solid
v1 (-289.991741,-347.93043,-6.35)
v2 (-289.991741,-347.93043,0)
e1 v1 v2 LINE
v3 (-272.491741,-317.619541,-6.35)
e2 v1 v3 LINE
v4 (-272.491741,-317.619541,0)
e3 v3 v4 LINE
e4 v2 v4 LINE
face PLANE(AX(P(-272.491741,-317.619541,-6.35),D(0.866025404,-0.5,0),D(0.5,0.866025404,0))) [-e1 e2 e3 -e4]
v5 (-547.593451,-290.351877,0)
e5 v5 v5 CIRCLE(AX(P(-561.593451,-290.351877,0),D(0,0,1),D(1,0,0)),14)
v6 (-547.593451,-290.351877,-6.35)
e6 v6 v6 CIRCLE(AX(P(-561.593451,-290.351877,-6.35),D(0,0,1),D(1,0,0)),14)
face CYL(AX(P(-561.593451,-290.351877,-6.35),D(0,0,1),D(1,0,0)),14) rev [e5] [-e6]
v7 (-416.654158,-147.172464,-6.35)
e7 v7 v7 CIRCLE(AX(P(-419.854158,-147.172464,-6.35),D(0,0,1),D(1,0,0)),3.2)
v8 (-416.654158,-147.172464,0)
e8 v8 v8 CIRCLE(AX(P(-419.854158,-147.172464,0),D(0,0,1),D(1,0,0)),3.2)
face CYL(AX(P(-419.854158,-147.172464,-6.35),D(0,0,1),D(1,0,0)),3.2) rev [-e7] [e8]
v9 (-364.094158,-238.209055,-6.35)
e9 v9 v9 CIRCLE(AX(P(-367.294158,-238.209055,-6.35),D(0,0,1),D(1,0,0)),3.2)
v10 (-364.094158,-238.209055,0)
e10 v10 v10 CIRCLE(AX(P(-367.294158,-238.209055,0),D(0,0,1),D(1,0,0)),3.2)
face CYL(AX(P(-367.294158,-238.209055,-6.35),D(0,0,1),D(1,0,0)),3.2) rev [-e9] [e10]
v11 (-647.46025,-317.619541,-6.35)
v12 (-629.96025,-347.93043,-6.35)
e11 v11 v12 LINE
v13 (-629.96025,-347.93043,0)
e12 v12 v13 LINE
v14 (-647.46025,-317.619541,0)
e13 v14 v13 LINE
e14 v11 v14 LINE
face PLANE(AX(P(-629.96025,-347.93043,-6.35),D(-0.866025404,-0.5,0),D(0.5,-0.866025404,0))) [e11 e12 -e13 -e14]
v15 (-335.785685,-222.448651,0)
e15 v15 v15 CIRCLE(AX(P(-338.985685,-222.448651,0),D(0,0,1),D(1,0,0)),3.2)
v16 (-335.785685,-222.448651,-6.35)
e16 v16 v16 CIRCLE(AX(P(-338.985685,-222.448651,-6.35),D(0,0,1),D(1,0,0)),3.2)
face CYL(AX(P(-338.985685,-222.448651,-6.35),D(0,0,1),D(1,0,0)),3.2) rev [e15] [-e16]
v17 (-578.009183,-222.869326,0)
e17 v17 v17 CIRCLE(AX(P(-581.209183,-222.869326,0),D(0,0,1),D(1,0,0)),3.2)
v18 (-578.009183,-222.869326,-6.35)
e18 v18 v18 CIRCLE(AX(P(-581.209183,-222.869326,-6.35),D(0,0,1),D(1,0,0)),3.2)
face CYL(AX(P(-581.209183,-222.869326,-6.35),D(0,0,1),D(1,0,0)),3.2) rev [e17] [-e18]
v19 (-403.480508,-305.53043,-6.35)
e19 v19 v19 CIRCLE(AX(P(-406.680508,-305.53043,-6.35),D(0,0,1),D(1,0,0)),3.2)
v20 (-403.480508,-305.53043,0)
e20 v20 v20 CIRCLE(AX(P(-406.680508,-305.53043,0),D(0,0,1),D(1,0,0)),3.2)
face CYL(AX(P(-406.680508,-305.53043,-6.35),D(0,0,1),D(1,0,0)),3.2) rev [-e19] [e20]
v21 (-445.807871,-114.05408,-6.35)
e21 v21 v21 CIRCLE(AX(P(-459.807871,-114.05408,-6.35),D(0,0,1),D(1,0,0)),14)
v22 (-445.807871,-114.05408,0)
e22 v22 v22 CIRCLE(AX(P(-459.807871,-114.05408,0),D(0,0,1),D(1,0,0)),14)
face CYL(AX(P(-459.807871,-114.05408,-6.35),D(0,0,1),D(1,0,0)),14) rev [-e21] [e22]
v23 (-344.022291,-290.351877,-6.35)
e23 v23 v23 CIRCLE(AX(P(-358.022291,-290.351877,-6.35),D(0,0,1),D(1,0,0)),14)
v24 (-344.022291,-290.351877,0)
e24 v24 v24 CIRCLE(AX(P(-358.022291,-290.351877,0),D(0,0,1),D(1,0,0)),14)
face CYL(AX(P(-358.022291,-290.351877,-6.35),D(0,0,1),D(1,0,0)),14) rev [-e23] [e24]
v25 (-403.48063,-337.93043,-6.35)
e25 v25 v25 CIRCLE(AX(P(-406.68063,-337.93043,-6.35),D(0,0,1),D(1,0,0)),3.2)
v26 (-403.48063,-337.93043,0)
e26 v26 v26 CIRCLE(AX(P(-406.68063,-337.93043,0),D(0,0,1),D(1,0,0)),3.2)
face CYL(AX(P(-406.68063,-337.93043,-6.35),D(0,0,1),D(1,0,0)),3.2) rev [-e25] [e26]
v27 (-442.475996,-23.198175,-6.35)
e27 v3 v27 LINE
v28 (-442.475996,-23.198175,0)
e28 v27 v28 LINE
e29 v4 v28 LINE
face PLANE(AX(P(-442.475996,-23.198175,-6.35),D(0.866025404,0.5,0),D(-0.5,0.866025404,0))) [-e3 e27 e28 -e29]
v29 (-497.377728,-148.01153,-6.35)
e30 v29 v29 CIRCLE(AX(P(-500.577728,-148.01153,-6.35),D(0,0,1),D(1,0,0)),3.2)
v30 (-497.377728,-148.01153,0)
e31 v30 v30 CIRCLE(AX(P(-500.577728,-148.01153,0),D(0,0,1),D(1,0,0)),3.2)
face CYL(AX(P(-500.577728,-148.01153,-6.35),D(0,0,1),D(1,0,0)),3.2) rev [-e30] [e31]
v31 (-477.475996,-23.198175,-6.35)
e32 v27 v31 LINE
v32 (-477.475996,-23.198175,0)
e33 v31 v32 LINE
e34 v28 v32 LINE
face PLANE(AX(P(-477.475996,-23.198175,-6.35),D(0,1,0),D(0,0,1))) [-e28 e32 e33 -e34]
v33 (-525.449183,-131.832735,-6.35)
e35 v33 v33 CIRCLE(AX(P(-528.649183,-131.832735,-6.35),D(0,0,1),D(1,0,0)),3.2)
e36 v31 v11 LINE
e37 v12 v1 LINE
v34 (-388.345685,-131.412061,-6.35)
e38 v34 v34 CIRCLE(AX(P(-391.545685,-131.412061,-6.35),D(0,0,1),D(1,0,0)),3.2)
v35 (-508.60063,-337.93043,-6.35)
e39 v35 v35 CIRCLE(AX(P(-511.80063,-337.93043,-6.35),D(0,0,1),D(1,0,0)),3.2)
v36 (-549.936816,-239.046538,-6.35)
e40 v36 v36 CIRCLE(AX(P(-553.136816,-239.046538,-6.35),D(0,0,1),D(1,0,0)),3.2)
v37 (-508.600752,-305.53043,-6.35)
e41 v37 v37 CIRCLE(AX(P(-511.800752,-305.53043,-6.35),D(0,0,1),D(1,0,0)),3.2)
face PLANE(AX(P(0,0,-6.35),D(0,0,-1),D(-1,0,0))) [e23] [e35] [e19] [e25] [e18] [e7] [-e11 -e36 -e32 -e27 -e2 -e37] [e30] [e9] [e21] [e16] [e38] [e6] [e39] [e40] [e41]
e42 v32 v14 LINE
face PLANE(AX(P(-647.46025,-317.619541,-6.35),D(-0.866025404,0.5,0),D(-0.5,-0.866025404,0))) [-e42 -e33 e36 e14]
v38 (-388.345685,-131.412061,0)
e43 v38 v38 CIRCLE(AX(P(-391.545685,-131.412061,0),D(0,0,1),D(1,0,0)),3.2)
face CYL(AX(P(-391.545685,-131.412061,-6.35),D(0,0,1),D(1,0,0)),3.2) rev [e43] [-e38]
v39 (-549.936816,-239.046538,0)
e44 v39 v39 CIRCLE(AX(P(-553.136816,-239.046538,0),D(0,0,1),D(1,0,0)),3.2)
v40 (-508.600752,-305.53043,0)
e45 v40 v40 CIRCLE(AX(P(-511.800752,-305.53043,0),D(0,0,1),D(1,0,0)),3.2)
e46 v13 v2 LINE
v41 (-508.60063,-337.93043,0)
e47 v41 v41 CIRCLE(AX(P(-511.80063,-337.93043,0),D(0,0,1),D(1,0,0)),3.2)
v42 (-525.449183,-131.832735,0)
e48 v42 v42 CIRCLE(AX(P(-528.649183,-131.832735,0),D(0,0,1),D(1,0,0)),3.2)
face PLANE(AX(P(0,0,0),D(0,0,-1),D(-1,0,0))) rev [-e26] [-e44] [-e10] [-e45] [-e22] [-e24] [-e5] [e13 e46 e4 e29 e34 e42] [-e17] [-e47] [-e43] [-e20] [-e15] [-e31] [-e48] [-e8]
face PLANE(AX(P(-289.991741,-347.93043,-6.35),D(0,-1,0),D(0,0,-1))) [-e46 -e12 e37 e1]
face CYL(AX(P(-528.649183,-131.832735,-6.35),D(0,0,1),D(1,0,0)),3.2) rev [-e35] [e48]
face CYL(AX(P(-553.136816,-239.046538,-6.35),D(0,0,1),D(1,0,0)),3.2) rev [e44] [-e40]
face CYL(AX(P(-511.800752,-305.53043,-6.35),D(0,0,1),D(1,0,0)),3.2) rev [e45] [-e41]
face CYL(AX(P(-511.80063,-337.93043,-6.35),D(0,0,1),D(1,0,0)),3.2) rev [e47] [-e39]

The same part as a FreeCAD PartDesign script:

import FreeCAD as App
import Part
import Sketcher

V = App.Vector
Q = App.Units.Quantity

doc = App.newDocument("Part")
body = doc.addObject("PartDesign::Body", "Body")

sketch1 = body.newObject("Sketcher::SketchObject", "Sketch")
sketch1.AttachmentSupport = (doc.getObject("XY_Plane"), [""])
sketch1.MapMode = "FlatFace"
sketch1.addGeometry([
    Part.LineSegment(V(-477.5, -23.2, 0), V(-647.5, -317.6, 0)),
    Part.LineSegment(V(-647.5, -317.6, 0), V(-630, -347.9, 0)),
    Part.LineSegment(V(-630, -347.9, 0), V(-290, -347.9, 0)),
    Part.LineSegment(V(-290, -347.9, 0), V(-272.5, -317.6, 0)),
    Part.LineSegment(V(-272.5, -317.6, 0), V(-442.5, -23.2, 0)),
    Part.LineSegment(V(-442.5, -23.2, 0), V(-477.5, -23.2, 0)),
    Part.Circle(V(-358, -290.4, 0), V(0, 0, 1), 14),
    Part.Circle(V(-406.7, -337.9, 0), V(0, 0, 1), 3.2),
    Part.Circle(V(-406.7, -305.5, 0), V(0, 0, 1), 3.2),
    Part.Circle(V(-339, -222.4, 0), V(0, 0, 1), 3.2),
    Part.Circle(V(-367.3, -238.2, 0), V(0, 0, 1), 3.2),
    Part.Circle(V(-511.8, -337.9, 0), V(0, 0, 1), 3.2),
    Part.Circle(V(-511.8, -305.5, 0), V(0, 0, 1), 3.2),
    Part.Circle(V(-561.6, -290.4, 0), V(0, 0, 1), 14),
    Part.Circle(V(-553.1, -239, 0), V(0, 0, 1), 3.2),
    Part.Circle(V(-581.2, -222.9, 0), V(0, 0, 1), 3.2),
    Part.Circle(V(-391.5, -131.4, 0), V(0, 0, 1), 3.2),
    Part.Circle(V(-419.9, -147.2, 0), V(0, 0, 1), 3.2),
    Part.Circle(V(-459.8, -114.1, 0), V(0, 0, 1), 14),
    Part.Circle(V(-500.6, -148, 0), V(0, 0, 1), 3.2),
    Part.Circle(V(-528.6, -131.8, 0), V(0, 0, 1), 3.2),
], False)
sketch1.addConstraint([
    Sketcher.Constraint("Coincident", 0, 2, 1, 1),
    Sketcher.Constraint("Coincident", 1, 2, 2, 1),
    Sketcher.Constraint("Coincident", 2, 2, 3, 1),
    Sketcher.Constraint("Coincident", 3, 2, 4, 1),
    Sketcher.Constraint("Coincident", 4, 2, 5, 1),
    Sketcher.Constraint("Coincident", 5, 2, 0, 1),
    Sketcher.Constraint("Horizontal", 2),
    Sketcher.Constraint("Horizontal", 5),
    Sketcher.Constraint("Equal", 7, 8),
    Sketcher.Constraint("Equal", 8, 9),
    Sketcher.Constraint("Equal", 9, 10),
    Sketcher.Constraint("Equal", 10, 11),
    Sketcher.Constraint("Equal", 11, 12),
    Sketcher.Constraint("Equal", 6, 13),
    Sketcher.Constraint("Equal", 12, 14),
    Sketcher.Constraint("Equal", 14, 15),
    Sketcher.Constraint("Equal", 15, 16),
    Sketcher.Constraint("Equal", 16, 17),
    Sketcher.Constraint("Equal", 13, 18),
    Sketcher.Constraint("Equal", 17, 19),
    Sketcher.Constraint("Equal", 19, 20),
    Sketcher.Constraint("Parallel", 0, 3),
    Sketcher.Constraint("Parallel", 1, 4),
    Sketcher.Constraint("Horizontal", 7, 3, 11, 3),
    Sketcher.Constraint("Horizontal", 8, 3, 12, 3),
    Sketcher.Constraint("Horizontal", 6, 3, 13, 3),
    Sketcher.Constraint("Horizontal", 0, 2, 3, 2),
    Sketcher.Constraint("Equal", 1, 3),
    Sketcher.Constraint("Diameter", 6, Q("28 mm")),
    Sketcher.Constraint("Diameter", 7, Q("6.4 mm")),
    Sketcher.Constraint("DistanceX", 5, 2, 5, 1, Q("35 mm")),
    Sketcher.Constraint("Angle", 0, Q("-120 deg")),
    Sketcher.Constraint("Distance", 1, Q("35 mm")),
    Sketcher.Constraint("DistanceY", 1, 2, 11, 3, Q("10 mm")),
    Sketcher.Constraint("DistanceY", 7, 3, 8, 3, Q("32.4 mm")),
    Sketcher.Constraint("DistanceX", 11, 3, 7, 3, Q("105.12 mm")),
    Sketcher.Constraint("DistanceX", 16, 3, 9, 3, Q("52.56 mm")),
    Sketcher.Constraint("DistanceX", 17, 3, 10, 3, Q("52.56 mm")),
    Sketcher.Constraint("DistanceX", 15, 3, 20, 3, Q("52.56 mm")),
    Sketcher.Constraint("DistanceX", 2, 1, 2, 2, Q("339.96851 mm")),
    Sketcher.Constraint("DistanceX", 13, 3, 12, 3, Q("49.792699 mm")),
    Sketcher.Constraint("DistanceX", 0, 2, 13, 3, Q("85.8668 mm")),
    Sketcher.Constraint("DistanceX", 6, 3, -1, 1, Q("358.022291 mm")),
    Sketcher.Constraint("DistanceX", 7, 3, -1, 1, Q("406.68063 mm")),
    Sketcher.Constraint("DistanceY", 7, 3, -1, 1, Q("337.93043 mm")),
    Sketcher.Constraint("DistanceX", 8, 3, -1, 1, Q("406.680508 mm")),
    Sketcher.Constraint("DistanceY", 9, 3, -1, 1, Q("222.448651 mm")),
    Sketcher.Constraint("DistanceX", 10, 3, -1, 1, Q("367.294158 mm")),
    Sketcher.Constraint("DistanceX", 12, 3, -1, 1, Q("511.800752 mm")),
    Sketcher.Constraint("DistanceY", 16, 3, -1, 1, Q("131.412061 mm")),
    Sketcher.Constraint("DistanceX", 18, 3, -1, 1, Q("459.807871 mm")),
    Sketcher.Constraint("DistanceY", 18, 3, -1, 1, Q("114.05408 mm")),
    Sketcher.Constraint("DistanceY", 19, 3, -1, 1, Q("148.01153 mm")),
    Sketcher.Constraint("DistanceY", 6, 3, 10, 3, Q("52.142822 mm")),
    Sketcher.Constraint("DistanceY", 13, 3, 14, 3, Q("51.305339 mm")),
    Sketcher.Constraint("DistanceY", 12, 3, 14, 3, Q("66.483892 mm")),
    Sketcher.Constraint("DistanceY", 13, 3, 15, 3, Q("67.482551 mm")),
    Sketcher.Constraint("DistanceX", 15, 3, 12, 3, Q("69.408431 mm")),
    Sketcher.Constraint("DistanceX", 14, 3, 16, 3, Q("161.591131 mm")),
    Sketcher.Constraint("DistanceY", 10, 3, 17, 3, Q("91.03659 mm")),
    Sketcher.Constraint("DistanceX", 19, 3, 17, 3, Q("80.723569 mm")),
    Sketcher.Constraint("DistanceY", 15, 3, 20, 3, Q("91.03659 mm")),
    Sketcher.Constraint("DistanceX", 4, 2, 16, 3, Q("50.930311 mm")),
])
pad1 = body.newObject("PartDesign::Pad", "Pad")
pad1.Profile = sketch1
pad1.Length = 6.35
pad1.Reversed = True

doc.recompute()
